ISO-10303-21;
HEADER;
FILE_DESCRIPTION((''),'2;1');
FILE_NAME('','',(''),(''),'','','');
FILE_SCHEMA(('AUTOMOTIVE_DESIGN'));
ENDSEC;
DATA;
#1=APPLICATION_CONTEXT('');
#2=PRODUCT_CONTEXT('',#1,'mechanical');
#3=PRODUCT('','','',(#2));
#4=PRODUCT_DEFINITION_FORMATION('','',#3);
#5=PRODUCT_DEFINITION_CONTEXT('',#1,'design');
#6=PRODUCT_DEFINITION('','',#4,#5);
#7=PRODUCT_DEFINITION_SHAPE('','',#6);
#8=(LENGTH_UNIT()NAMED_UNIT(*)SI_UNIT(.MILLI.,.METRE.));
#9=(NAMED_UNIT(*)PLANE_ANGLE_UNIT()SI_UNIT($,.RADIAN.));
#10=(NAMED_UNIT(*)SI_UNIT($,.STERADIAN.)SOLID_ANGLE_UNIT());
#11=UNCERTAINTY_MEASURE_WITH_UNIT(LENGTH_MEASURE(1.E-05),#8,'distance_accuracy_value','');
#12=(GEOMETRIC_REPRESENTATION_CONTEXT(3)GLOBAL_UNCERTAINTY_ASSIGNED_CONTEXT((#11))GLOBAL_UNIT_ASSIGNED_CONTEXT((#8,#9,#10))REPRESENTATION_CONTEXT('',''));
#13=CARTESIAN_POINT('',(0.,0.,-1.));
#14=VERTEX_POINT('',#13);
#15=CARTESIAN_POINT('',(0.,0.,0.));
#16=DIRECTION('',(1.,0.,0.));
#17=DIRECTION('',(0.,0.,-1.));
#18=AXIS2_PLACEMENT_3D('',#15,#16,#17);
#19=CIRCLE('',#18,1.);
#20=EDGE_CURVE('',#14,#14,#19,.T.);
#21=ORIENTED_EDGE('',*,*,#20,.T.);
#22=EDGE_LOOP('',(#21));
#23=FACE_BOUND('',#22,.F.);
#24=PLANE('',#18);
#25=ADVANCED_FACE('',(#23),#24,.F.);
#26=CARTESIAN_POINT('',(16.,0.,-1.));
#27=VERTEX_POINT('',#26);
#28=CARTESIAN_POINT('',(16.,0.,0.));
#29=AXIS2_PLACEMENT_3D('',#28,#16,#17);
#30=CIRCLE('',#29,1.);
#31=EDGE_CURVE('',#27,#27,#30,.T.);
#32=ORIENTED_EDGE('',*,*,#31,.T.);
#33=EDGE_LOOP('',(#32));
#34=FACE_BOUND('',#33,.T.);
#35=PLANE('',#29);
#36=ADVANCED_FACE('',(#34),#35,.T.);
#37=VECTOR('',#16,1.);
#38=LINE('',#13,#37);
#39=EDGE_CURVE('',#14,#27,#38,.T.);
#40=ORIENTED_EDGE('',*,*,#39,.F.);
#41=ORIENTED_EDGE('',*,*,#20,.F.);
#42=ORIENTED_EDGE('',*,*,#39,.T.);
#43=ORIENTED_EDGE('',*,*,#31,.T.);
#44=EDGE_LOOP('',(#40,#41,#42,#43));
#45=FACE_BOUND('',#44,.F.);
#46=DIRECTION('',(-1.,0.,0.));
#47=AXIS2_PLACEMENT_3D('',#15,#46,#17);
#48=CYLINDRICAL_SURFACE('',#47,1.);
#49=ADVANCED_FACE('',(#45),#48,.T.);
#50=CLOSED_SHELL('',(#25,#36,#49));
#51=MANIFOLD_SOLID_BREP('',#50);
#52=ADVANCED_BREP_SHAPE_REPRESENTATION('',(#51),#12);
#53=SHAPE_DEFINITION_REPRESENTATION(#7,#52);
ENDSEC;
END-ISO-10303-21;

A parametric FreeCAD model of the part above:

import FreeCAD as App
import Part
import Sketcher
from FreeCAD import Vector

doc = App.newDocument("Part")
params = doc.addObject("Spreadsheet::Sheet", "Params")
for row, (alias, value) in enumerate([
    ("sketch1_diameter", "2 mm"),
    ("pad1_length", "16 mm"),
], start=1):
    params.set(f"A{row}", alias)
    params.set(f"B{row}", "=" + value)
    params.setAlias(f"B{row}", alias)

body = doc.addObject("PartDesign::Body", "Body")

sketch1 = body.newObject("Sketcher::SketchObject", "Sketch")
sketch1.AttachmentSupport = (doc.getObject("YZ_Plane"), [""])
sketch1.MapMode = "FlatFace"
sketch1.addGeometry(Part.Circle(Vector(0, 0, 0), Vector(0, 0, 1), 1), False)
sketch1.addConstraint(Sketcher.Constraint("Coincident", 0, 3, -1, 1))
sketch1.addConstraint(Sketcher.Constraint("Diameter", 0, 2.0))
sketch1.setExpression("Constraints[1]", "Params.sketch1_diameter")
pad1 = body.newObject("PartDesign::Pad", "Pad")
pad1.Profile = sketch1
pad1.setExpression("Length", "Params.pad1_length")

doc.recompute()
